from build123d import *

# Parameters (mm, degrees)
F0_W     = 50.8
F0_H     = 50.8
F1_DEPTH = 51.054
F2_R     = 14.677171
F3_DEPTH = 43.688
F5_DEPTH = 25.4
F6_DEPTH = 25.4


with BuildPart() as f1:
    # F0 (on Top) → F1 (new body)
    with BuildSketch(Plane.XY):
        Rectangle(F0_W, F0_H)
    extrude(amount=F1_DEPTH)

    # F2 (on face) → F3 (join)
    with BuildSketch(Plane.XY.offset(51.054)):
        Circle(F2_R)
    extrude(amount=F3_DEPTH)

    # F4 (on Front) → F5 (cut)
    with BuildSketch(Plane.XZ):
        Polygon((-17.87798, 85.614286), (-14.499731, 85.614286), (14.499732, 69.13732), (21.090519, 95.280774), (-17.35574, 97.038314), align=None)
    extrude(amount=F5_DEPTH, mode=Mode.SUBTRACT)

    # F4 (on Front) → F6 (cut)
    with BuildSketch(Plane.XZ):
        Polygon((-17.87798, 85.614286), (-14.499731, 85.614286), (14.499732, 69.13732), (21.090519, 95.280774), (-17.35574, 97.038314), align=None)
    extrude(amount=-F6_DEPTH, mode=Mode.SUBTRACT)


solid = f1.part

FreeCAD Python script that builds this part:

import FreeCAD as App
import Part
import Sketcher

V = App.Vector
Q = App.Units.Quantity


def add_polygon(sketch, points):
    """Adds a closed chain of lines whose ends are joined by coincident constraints."""
    first, n = sketch.GeometryCount, len(points)
    for a, b in zip(points, points[1:] + points[:1]):
        sketch.addGeometry(Part.LineSegment(App.Vector(*a, 0), App.Vector(*b, 0)), False)
    for i in range(n):
        sketch.addConstraint(Sketcher.Constraint("Coincident", first + i, 2, first + (i + 1) % n, 1))

doc = App.newDocument("Part")
body = doc.addObject("PartDesign::Body", "Body")

sketch1 = body.newObject("Sketcher::SketchObject", "Sketch")
sketch1.AttachmentSupport = (doc.getObject("XY_Plane"), [""])
sketch1.MapMode = "FlatFace"
add_polygon(sketch1, [(-25, 25), (-25, -25), (25, -25), (25, 25)])
sketch1.addConstraint(Sketcher.Constraint("Vertical", 0))
sketch1.addConstraint(Sketcher.Constraint("Horizontal", 1))
sketch1.addConstraint(Sketcher.Constraint("Vertical", 2))
sketch1.addConstraint(Sketcher.Constraint("Horizontal", 3))
sketch1.addConstraint(Sketcher.Constraint("Symmetric", 0, 2, 2, 2, -1, 1))
sketch1.addConstraint(Sketcher.Constraint("Equal", 3, 0))
sketch1.addConstraint(Sketcher.Constraint("DistanceX", 1, 1, 1, 2, Q("2 in")))
pad1 = body.newObject("PartDesign::Pad", "Pad")
pad1.Profile = sketch1
pad1.Length = Q("2.01 in")

sketch2 = body.newObject("Sketcher::SketchObject", "Sketch001")
sketch2.AttachmentSupport = (doc.getObject("XY_Plane"), [""])
sketch2.MapMode = "FlatFace"
sketch2.AttachmentOffset = App.Placement(V(0, 0, 2.01 * 25.4), App.Rotation())
sketch2.addGeometry(Part.Circle(V(0, 0, 0), V(0, 0, 1), 15), False)
sketch2.addConstraint(Sketcher.Constraint("Coincident", 0, 3, -1, 1))
sketch2.addConstraint(Sketcher.Constraint("Diameter", 0, 29.354342))
pad2 = body.newObject("PartDesign::Pad", "Pad001")
pad2.Profile = sketch2
pad2.Length = Q("1.72 in")

sketch3 = body.newObject("Sketcher::SketchObject", "Sketch002")
sketch3.AttachmentSupport = (doc.getObject("XZ_Plane"), [""])
sketch3.MapMode = "FlatFace"
add_polygon(sketch3, [(-17.9, 85.6), (-14.5, 85.6), (14.5, 69.1), (21.1, 95.3), (-17.4, 97)])
sketch3.addConstraint(Sketcher.Constraint("Horizontal", 0))
sketch3.addConstraint(Sketcher.Constraint("Perpendicular", 3, 4))
sketch3.addConstraint(Sketcher.Constraint("DistanceX", 0, 1, 0, 2, 3.378249))
sketch3.addConstraint(Sketcher.Constraint("DistanceX", 4, 2, 2, 2, 38.968499))
sketch3.addConstraint(Sketcher.Constraint("Distance", 1, 33.353549))
sketch3.addConstraint(Sketcher.Constraint("Distance", 2, 26.961429))
sketch3.addConstraint(Sketcher.Constraint("Distance", 3, 38.48641))
sketch3.addConstraint(Sketcher.Constraint("Distance", 4, 11.435959))
sketch3.addConstraint(Sketcher.Constraint("DistanceX", 0, 2, -1, 1, 14.499731))
sketch3.addConstraint(Sketcher.Constraint("DistanceY", -1, 1, 1, 2, 69.13732))
pocket1 = body.newObject("PartDesign::Pocket", "Pocket")
pocket1.Profile = sketch3
pocket1.Length = Q("1 in")
pocket1.Reversed = True

sketch4 = body.newObject("Sketcher::SketchObject", "Sketch003")
sketch4.AttachmentSupport = (doc.getObject("XZ_Plane"), [""])
sketch4.MapMode = "FlatFace"
add_polygon(sketch4, [(-17.9, 85.6), (-14.5, 85.6), (14.5, 69.1), (21.1, 95.3), (-17.4, 97)])
sketch4.addConstraint(Sketcher.Constraint("Horizontal", 0))
sketch4.addConstraint(Sketcher.Constraint("Perpendicular", 3, 4))
sketch4.addConstraint(Sketcher.Constraint("DistanceX", 0, 1, 0, 2, 3.378249))
sketch4.addConstraint(Sketcher.Constraint("DistanceX", 4, 2, 2, 2, 38.968499))
sketch4.addConstraint(Sketcher.Constraint("Distance", 1, 33.353549))
sketch4.addConstraint(Sketcher.Constraint("Distance", 2, 26.961429))
sketch4.addConstraint(Sketcher.Constraint("Distance", 3, 38.48641))
sketch4.addConstraint(Sketcher.Constraint("Distance", 4, 11.435959))
sketch4.addConstraint(Sketcher.Constraint("DistanceX", 0, 2, -1, 1, 14.499731))
sketch4.addConstraint(Sketcher.Constraint("DistanceY", -1, 1, 1, 2, 69.13732))
pocket2 = body.newObject("PartDesign::Pocket", "Pocket001")
pocket2.Profile = sketch4
pocket2.Length = Q("1 in")

doc.recompute()
